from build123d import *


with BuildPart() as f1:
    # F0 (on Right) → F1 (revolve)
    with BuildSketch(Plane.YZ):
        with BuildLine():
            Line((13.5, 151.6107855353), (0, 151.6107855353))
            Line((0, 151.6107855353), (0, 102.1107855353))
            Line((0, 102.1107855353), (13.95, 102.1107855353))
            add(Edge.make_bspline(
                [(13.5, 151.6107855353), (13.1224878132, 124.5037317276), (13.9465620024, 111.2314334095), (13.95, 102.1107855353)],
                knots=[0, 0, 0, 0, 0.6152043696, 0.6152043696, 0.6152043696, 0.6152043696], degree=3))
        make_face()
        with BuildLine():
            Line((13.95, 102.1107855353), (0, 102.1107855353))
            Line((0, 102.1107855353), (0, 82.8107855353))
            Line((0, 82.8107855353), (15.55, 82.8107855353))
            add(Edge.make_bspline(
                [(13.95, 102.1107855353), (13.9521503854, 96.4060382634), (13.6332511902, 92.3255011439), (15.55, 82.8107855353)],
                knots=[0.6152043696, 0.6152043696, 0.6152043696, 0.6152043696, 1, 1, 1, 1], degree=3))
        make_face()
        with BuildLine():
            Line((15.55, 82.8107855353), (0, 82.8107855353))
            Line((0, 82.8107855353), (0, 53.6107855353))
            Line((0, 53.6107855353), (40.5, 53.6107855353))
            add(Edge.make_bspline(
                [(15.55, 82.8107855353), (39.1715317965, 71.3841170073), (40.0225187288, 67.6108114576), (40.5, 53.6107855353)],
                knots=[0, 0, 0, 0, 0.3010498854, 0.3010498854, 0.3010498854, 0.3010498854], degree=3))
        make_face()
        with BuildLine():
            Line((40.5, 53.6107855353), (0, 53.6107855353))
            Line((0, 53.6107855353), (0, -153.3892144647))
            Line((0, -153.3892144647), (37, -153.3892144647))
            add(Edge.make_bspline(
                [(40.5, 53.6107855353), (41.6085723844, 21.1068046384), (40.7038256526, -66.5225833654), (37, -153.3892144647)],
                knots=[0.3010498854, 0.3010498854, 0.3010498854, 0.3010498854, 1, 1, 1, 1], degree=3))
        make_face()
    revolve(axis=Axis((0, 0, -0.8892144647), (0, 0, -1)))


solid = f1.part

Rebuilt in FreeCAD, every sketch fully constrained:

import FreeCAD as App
import Part
import Sketcher

doc = App.newDocument("Part")
body = doc.addObject("PartDesign::Body", "Body")

# Sketch on YZ plane
sketch1 = body.newObject("Sketcher::SketchObject", "Sketch")
sketch1.AttachmentSupport = (doc.getObject("YZ_Plane"), [""])
sketch1.MapMode = "FlatFace"
sketch1.addGeometry([
    Part.LineSegment(App.Vector(13.5, 151.610786, 0), App.Vector(0, 151.610786, 0)),  # 0
    Part.LineSegment(App.Vector(0, 151.610786, 0), App.Vector(0, -153.389214, 0)),  # 1
    Part.LineSegment(App.Vector(0, -153.389214, 0), App.Vector(37, -153.389214, 0)),  # 2
    Part.BSplineCurve([App.Vector(40.5, 53.610786, 0), App.Vector(41.608572, 21.106805, 0), App.Vector(40.703826, -66.522583, 0), App.Vector(37, -153.389214, 0)], [4, 4], [0.301049885, 1], False, 3, [1, 1, 1, 1], False),  # 3
    Part.BSplineCurve([App.Vector(15.55, 82.810786, 0), App.Vector(39.171532, 71.384117, 0), App.Vector(40.022519, 67.610811, 0), App.Vector(40.5, 53.610786, 0)], [4, 4], [0, 0.301049885], False, 3, [1, 1, 1, 1], False),  # 4
    Part.BSplineCurve([App.Vector(13.95, 102.110786, 0), App.Vector(13.95215, 96.406038, 0), App.Vector(13.633251, 92.325501, 0), App.Vector(15.55, 82.810786, 0)], [4, 4], [0.61520437, 1], False, 3, [1, 1, 1, 1], False),  # 5
    Part.BSplineCurve([App.Vector(13.5, 151.610786, 0), App.Vector(13.122488, 124.503732, 0), App.Vector(13.946562, 111.231433, 0), App.Vector(13.95, 102.110786, 0)], [4, 4], [0, 0.61520437], False, 3, [1, 1, 1, 1], False),  # 6
], False)
sketch1.addConstraint([
    Sketcher.Constraint("Block", 3),
    Sketcher.Constraint("Block", 4),
    Sketcher.Constraint("Block", 5),
    Sketcher.Constraint("Block", 6),
    Sketcher.Constraint("Coincident", 0, 2, 1, 1),
    Sketcher.Constraint("Coincident", 1, 2, 2, 1),
    Sketcher.Constraint("Coincident", 2, 2, 3, 2),
    Sketcher.Constraint("Coincident", 6, 1, 0, 1),
    Sketcher.Constraint("Horizontal", 0),
    Sketcher.Constraint("Vertical", 1),
    Sketcher.Constraint("Horizontal", 2),
    Sketcher.Constraint("PointOnObject", 0, 2, -2),
])
revolution = body.newObject("PartDesign::Revolution", "Revolution")
revolution.Profile = sketch1
revolution.ReferenceAxis = (sketch1, ["V_Axis"])
revolution.Angle = 360

doc.recompute()
